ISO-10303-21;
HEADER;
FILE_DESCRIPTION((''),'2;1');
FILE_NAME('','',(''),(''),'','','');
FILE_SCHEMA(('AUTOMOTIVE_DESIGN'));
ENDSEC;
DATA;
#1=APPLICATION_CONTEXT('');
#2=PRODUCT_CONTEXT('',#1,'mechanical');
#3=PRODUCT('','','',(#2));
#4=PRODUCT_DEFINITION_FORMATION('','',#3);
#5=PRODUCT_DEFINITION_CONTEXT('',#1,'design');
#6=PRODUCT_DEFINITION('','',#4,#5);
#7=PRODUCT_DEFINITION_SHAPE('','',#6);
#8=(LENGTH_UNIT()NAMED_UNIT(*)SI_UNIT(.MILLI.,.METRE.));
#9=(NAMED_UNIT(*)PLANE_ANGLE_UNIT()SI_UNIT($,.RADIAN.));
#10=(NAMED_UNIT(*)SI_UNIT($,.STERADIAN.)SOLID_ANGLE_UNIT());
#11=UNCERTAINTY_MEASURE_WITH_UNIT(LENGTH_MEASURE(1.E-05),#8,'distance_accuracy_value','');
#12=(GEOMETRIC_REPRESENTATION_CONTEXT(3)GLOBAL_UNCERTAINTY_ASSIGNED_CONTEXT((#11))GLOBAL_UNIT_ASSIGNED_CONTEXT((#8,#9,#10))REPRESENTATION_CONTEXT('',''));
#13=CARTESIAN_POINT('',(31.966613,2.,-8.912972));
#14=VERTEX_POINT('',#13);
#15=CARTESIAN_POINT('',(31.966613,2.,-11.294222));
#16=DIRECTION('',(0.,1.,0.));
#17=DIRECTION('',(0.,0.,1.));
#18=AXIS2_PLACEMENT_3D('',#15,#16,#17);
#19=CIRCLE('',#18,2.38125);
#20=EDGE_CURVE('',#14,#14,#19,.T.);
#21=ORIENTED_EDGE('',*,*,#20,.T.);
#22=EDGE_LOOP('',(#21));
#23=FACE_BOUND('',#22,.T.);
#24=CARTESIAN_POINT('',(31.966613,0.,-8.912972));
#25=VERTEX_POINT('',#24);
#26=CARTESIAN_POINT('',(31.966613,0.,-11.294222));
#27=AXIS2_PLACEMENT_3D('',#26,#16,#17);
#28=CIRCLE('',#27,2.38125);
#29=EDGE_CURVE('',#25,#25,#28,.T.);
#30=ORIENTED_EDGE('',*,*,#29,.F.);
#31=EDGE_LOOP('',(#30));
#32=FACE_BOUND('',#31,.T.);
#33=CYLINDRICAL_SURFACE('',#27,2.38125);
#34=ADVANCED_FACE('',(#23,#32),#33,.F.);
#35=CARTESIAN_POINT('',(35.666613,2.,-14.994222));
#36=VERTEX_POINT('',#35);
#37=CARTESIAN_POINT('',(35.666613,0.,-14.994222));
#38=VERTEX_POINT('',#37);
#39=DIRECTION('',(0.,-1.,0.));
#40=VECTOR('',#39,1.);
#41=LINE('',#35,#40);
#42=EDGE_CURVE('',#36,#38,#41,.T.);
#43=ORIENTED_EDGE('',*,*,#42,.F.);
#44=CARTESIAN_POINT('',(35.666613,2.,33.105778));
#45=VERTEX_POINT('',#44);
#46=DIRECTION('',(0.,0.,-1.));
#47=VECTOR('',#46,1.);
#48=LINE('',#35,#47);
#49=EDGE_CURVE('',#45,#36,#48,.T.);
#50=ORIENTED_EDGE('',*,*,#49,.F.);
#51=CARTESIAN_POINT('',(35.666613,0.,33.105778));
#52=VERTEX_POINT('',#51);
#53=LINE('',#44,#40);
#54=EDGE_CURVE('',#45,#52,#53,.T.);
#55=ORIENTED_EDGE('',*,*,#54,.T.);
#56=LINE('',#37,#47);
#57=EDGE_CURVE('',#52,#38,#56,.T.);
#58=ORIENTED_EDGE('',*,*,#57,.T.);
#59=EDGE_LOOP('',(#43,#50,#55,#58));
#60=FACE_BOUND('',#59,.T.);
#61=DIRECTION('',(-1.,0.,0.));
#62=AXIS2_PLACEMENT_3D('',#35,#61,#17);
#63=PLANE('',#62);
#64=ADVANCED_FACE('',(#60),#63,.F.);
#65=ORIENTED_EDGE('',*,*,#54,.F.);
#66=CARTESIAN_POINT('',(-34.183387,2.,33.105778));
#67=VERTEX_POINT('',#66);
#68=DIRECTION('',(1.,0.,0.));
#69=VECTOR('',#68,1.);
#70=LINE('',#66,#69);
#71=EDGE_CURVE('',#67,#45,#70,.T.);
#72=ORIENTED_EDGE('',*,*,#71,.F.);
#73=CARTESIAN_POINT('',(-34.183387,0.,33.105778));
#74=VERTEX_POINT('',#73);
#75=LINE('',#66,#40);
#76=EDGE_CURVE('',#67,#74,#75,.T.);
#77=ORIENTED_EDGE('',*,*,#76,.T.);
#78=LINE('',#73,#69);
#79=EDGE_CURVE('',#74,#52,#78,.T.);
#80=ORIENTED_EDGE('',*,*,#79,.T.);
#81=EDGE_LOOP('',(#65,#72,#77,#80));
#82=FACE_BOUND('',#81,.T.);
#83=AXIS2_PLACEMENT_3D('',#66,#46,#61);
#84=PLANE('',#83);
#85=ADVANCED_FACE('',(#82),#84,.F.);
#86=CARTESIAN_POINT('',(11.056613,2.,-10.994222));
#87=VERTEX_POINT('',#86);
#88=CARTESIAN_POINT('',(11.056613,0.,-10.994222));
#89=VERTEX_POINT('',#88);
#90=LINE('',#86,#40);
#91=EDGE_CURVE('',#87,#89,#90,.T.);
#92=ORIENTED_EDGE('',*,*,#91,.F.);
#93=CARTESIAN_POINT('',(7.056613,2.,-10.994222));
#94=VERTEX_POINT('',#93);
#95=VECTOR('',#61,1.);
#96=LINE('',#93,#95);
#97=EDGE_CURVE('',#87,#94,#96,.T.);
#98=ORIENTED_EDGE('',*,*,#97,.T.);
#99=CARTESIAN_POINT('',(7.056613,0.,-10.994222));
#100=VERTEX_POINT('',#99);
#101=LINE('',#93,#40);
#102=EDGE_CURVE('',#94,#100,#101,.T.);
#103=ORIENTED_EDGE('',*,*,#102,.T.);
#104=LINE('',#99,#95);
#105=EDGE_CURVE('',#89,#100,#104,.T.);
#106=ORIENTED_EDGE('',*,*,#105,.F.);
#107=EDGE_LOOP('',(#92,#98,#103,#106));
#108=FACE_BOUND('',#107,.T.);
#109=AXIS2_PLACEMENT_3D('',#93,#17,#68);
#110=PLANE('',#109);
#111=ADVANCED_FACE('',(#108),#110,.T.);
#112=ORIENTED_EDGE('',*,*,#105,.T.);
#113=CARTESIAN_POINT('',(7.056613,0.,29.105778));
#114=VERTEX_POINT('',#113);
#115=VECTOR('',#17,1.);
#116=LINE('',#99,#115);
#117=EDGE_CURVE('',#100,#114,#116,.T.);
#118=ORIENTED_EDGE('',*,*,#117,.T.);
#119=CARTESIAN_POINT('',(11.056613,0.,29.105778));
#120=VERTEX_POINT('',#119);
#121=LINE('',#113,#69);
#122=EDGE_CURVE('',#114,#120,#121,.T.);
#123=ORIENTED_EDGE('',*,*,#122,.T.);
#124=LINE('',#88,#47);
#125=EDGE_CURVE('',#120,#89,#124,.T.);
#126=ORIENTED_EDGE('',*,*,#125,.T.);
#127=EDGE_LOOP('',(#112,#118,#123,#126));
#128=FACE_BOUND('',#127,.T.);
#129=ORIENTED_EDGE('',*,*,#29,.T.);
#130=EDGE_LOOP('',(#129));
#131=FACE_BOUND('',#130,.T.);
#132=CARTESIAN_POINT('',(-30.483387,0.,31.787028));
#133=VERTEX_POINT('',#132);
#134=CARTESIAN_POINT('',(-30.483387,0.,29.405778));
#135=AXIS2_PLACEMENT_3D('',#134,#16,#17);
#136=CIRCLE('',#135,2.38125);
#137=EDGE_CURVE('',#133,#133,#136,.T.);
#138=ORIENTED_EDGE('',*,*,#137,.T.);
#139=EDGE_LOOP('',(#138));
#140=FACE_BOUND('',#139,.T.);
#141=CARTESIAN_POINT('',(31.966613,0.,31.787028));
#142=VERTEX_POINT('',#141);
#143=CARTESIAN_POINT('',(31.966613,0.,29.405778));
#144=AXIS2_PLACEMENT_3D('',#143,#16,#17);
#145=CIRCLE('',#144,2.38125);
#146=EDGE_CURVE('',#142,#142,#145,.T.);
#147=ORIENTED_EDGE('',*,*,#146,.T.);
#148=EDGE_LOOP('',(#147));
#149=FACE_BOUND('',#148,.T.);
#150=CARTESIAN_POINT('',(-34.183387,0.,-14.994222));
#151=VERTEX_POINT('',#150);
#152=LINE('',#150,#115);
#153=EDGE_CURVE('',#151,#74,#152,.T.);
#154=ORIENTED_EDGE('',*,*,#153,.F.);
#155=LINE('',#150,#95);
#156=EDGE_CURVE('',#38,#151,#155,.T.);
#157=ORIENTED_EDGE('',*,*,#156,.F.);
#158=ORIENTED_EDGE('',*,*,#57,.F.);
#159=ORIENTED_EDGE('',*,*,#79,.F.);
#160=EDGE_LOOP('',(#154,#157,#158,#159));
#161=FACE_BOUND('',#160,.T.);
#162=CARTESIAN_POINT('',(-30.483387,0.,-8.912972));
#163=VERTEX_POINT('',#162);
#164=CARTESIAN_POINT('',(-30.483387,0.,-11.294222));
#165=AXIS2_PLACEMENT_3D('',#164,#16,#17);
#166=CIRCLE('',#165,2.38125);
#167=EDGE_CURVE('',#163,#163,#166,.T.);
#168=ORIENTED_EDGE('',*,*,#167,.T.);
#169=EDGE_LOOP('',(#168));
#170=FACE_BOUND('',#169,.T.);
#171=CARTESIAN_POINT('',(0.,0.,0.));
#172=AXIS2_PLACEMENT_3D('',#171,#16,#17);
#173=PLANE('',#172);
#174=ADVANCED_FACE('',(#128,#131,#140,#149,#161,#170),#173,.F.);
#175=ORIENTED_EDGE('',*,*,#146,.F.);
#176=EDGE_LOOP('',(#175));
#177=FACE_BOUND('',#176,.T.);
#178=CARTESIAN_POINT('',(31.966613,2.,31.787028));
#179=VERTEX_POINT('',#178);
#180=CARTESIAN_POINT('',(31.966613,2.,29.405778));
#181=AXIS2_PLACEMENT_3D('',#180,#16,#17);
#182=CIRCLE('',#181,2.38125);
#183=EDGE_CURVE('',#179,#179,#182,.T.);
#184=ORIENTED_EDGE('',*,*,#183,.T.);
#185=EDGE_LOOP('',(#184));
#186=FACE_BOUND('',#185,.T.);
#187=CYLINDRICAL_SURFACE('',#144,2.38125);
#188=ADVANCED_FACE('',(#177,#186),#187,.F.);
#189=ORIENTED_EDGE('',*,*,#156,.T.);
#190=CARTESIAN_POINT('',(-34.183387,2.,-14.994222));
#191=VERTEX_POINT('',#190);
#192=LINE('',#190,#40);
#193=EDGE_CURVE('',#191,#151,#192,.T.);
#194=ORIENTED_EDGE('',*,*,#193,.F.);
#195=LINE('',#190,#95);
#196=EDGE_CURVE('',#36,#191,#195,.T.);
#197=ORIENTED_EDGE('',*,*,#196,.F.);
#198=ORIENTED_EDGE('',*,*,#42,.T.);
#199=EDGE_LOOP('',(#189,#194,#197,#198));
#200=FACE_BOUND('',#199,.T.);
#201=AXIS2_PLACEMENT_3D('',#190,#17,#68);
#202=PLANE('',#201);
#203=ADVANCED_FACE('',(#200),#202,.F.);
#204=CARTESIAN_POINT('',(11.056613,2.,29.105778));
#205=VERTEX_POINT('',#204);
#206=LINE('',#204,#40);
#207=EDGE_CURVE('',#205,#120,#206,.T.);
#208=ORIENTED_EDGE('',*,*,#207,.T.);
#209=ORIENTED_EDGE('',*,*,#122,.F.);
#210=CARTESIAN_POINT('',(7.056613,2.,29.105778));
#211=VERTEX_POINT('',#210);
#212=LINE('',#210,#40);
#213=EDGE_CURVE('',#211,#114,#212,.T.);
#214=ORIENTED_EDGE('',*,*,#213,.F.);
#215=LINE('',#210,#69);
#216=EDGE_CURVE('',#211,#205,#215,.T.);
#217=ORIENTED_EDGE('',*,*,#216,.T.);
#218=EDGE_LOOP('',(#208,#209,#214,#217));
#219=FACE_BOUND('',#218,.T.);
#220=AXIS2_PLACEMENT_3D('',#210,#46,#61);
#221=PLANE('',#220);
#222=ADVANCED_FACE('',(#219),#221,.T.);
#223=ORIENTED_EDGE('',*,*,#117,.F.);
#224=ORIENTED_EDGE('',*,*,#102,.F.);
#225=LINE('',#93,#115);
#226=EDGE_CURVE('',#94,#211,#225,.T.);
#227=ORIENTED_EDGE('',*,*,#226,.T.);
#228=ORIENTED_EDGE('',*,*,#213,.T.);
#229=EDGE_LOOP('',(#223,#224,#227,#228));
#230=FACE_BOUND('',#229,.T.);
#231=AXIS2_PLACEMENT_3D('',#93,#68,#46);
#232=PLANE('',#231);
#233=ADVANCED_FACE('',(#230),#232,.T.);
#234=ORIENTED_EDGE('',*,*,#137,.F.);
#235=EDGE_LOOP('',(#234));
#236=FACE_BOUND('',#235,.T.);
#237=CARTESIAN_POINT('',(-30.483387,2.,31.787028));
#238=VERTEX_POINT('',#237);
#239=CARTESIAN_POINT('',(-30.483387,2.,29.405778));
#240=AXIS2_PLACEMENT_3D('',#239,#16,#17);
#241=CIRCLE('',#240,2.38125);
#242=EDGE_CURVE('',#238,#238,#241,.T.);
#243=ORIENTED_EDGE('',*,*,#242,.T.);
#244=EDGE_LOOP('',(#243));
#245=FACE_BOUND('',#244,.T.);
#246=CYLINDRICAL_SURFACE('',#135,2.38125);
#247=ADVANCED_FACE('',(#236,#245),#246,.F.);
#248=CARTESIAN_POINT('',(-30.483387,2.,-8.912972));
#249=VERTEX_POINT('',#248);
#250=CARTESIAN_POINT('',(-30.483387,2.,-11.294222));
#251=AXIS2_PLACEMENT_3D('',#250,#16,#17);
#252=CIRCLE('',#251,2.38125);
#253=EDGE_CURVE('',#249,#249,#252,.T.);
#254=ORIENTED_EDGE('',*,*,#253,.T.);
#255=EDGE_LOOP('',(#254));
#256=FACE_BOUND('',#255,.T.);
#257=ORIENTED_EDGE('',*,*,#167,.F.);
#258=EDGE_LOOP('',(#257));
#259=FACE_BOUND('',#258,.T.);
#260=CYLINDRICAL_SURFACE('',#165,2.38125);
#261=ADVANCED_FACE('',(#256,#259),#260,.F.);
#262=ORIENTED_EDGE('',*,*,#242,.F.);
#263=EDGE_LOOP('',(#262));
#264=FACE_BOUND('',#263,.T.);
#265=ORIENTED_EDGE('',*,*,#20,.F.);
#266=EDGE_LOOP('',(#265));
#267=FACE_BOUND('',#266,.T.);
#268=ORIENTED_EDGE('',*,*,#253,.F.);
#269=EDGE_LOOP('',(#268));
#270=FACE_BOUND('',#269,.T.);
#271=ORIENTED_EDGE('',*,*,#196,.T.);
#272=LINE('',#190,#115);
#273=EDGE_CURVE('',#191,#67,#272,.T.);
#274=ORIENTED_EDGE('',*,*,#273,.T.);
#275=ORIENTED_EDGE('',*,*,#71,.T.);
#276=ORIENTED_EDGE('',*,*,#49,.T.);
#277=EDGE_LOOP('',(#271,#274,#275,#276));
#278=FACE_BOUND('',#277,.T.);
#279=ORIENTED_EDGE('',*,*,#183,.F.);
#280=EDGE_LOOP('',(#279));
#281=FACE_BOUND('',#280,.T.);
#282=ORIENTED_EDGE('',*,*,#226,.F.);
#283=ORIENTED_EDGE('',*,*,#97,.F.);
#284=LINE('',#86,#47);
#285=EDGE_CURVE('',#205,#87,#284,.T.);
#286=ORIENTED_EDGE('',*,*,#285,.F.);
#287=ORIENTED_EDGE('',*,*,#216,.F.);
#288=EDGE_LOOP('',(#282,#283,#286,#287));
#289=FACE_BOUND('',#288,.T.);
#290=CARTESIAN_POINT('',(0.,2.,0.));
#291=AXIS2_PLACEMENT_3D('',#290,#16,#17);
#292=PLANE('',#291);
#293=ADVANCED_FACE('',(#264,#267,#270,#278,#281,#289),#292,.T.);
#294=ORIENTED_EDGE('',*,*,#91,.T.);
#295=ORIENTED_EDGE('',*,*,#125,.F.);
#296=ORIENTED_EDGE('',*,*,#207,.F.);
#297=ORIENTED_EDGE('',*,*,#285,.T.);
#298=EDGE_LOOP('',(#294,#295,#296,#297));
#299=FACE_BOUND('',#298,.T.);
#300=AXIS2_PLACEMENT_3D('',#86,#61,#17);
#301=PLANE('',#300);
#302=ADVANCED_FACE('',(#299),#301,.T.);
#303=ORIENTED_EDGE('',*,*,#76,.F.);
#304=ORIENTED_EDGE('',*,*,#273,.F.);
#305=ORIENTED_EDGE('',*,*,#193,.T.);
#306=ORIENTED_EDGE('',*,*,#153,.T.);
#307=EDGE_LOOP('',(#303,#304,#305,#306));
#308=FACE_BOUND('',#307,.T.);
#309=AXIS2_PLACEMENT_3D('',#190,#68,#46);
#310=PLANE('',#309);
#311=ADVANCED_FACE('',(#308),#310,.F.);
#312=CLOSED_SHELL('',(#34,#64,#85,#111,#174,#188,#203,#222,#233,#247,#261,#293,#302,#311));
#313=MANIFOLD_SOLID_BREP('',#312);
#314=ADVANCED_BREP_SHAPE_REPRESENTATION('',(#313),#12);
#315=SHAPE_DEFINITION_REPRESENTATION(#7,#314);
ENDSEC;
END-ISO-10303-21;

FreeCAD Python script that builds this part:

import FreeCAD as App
import Part
import Sketcher
from FreeCAD import Vector

doc = App.newDocument("Part")
body = doc.addObject("PartDesign::Body", "Body")

sketch1 = body.newObject("Sketcher::SketchObject", "Sketch")
sketch1.AttachmentSupport = (doc.getObject("XZ_Plane"), [""])
sketch1.MapMode = "FlatFace"
sketch1.addGeometry([
    Part.LineSegment(Vector(-34.2, -15, 0), Vector(-34.2, 33.1, 0)),
    Part.LineSegment(Vector(-34.2, 33.1, 0), Vector(35.7, 33.1, 0)),
    Part.LineSegment(Vector(35.7, 33.1, 0), Vector(35.7, -15, 0)),
    Part.LineSegment(Vector(35.7, -15, 0), Vector(-34.2, -15, 0)),
    Part.LineSegment(Vector(11.1, 29.1, 0), Vector(7.1, 29.1, 0)),
    Part.LineSegment(Vector(7.1, 29.1, 0), Vector(7.1, -11, 0)),
    Part.LineSegment(Vector(7.1, -11, 0), Vector(11.1, -11, 0)),
    Part.LineSegment(Vector(11.1, -11, 0), Vector(11.1, 29.1, 0)),
], False)
sketch1.addConstraint([
    Sketcher.Constraint("Coincident", 0, 2, 1, 1),
    Sketcher.Constraint("Coincident", 1, 2, 2, 1),
    Sketcher.Constraint("Coincident", 2, 2, 3, 1),
    Sketcher.Constraint("Coincident", 3, 2, 0, 1),
    Sketcher.Constraint("Coincident", 4, 2, 5, 1),
    Sketcher.Constraint("Coincident", 5, 2, 6, 1),
    Sketcher.Constraint("Coincident", 6, 2, 7, 1),
    Sketcher.Constraint("Coincident", 7, 2, 4, 1),
    Sketcher.Constraint("Vertical", 0),
    Sketcher.Constraint("Horizontal", 1),
    Sketcher.Constraint("Vertical", 2),
    Sketcher.Constraint("Horizontal", 3),
    Sketcher.Constraint("Horizontal", 4),
    Sketcher.Constraint("Vertical", 5),
    Sketcher.Constraint("Horizontal", 6),
    Sketcher.Constraint("Vertical", 7),
    Sketcher.Constraint("DistanceX", 4, 2, 4, 1, 4.0),
    Sketcher.Constraint("DistanceY", 0, 1, 0, 2, 48.1),
    Sketcher.Constraint("DistanceY", 5, 2, 5, 1, 40.1),
    Sketcher.Constraint("DistanceY", 4, 2, 1, 2, 4.0),
    Sketcher.Constraint("DistanceX", 1, 1, 1, 2, 69.85),
    Sketcher.Constraint("DistanceX", 4, 2, 1, 2, 28.61),
    Sketcher.Constraint("DistanceX", 0, 2, -1, 1, 34.183387),
    Sketcher.Constraint("DistanceY", -1, 1, 0, 2, 33.105778),
])
pad1 = body.newObject("PartDesign::Pad", "Pad")
pad1.Profile = sketch1
pad1.Length = 2
pad1.Reversed = True

sketch2 = body.newObject("Sketcher::SketchObject", "Sketch001")
sketch2.AttachmentSupport = (doc.getObject("XZ_Plane"), [""])
sketch2.MapMode = "FlatFace"
sketch2.AttachmentOffset = App.Placement(Vector(0, 0, -2), App.Rotation())
sketch2.addGeometry(Part.Circle(Vector(-30.5, 29.4, 0), Vector(0, 0, 1), 2.4), False)
sketch2.addConstraint([
    Sketcher.Constraint("Diameter", 0, 4.7625),
    Sketcher.Constraint("DistanceX", 0, 3, -1, 1, 30.483387),
    Sketcher.Constraint("DistanceY", -1, 1, 0, 3, 29.405778),
])
pocket1 = body.newObject("PartDesign::Pocket", "Pocket")
pocket1.Profile = sketch2
pocket1.Length = 2
pocket1.Reversed = True

sketch3 = body.newObject("Sketcher::SketchObject", "Sketch002")
sketch3.AttachmentSupport = (doc.getObject("XZ_Plane"), [""])
sketch3.MapMode = "FlatFace"
sketch3.AttachmentOffset = App.Placement(Vector(0, 0, -2), App.Rotation())
sketch3.addGeometry(Part.Circle(Vector(-30.5, -11.3, 0), Vector(0, 0, 1), 2.4), False)
sketch3.addConstraint([
    Sketcher.Constraint("Diameter", 0, 4.7625),
    Sketcher.Constraint("DistanceX", 0, 3, -1, 1, 30.483387),
    Sketcher.Constraint("DistanceY", 0, 3, -1, 1, 11.294222),
])
pocket2 = body.newObject("PartDesign::Pocket", "Pocket001")
pocket2.Profile = sketch3
pocket2.Length = 2
pocket2.Reversed = True

sketch4 = body.newObject("Sketcher::SketchObject", "Sketch003")
sketch4.AttachmentSupport = (doc.getObject("XZ_Plane"), [""])
sketch4.MapMode = "FlatFace"
sketch4.AttachmentOffset = App.Placement(Vector(0, 0, -2), App.Rotation())
sketch4.addGeometry(Part.Circle(Vector(32, 29.4, 0), Vector(0, 0, 1), 2.4), False)
sketch4.addConstraint([
    Sketcher.Constraint("Diameter", 0, 4.7625),
    Sketcher.Constraint("DistanceX", -1, 1, 0, 3, 31.966613),
    Sketcher.Constraint("DistanceY", -1, 1, 0, 3, 29.405778),
])
pocket3 = body.newObject("PartDesign::Pocket", "Pocket002")
pocket3.Profile = sketch4
pocket3.Length = 2
pocket3.Reversed = True

sketch5 = body.newObject("Sketcher::SketchObject", "Sketch004")
sketch5.AttachmentSupport = (doc.getObject("XZ_Plane"), [""])
sketch5.MapMode = "FlatFace"
sketch5.AttachmentOffset = App.Placement(Vector(0, 0, -2), App.Rotation())
sketch5.addGeometry(Part.Circle(Vector(32, -11.3, 0), Vector(0, 0, 1), 2.4), False)
sketch5.addConstraint([
    Sketcher.Constraint("Diameter", 0, 4.7625),
    Sketcher.Constraint("DistanceX", -1, 1, 0, 3, 31.966613),
    Sketcher.Constraint("DistanceY", 0, 3, -1, 1, 11.294222),
])
pocket4 = body.newObject("PartDesign::Pocket", "Pocket003")
pocket4.Profile = sketch5
pocket4.Length = 2
pocket4.Reversed = True

doc.recompute()
